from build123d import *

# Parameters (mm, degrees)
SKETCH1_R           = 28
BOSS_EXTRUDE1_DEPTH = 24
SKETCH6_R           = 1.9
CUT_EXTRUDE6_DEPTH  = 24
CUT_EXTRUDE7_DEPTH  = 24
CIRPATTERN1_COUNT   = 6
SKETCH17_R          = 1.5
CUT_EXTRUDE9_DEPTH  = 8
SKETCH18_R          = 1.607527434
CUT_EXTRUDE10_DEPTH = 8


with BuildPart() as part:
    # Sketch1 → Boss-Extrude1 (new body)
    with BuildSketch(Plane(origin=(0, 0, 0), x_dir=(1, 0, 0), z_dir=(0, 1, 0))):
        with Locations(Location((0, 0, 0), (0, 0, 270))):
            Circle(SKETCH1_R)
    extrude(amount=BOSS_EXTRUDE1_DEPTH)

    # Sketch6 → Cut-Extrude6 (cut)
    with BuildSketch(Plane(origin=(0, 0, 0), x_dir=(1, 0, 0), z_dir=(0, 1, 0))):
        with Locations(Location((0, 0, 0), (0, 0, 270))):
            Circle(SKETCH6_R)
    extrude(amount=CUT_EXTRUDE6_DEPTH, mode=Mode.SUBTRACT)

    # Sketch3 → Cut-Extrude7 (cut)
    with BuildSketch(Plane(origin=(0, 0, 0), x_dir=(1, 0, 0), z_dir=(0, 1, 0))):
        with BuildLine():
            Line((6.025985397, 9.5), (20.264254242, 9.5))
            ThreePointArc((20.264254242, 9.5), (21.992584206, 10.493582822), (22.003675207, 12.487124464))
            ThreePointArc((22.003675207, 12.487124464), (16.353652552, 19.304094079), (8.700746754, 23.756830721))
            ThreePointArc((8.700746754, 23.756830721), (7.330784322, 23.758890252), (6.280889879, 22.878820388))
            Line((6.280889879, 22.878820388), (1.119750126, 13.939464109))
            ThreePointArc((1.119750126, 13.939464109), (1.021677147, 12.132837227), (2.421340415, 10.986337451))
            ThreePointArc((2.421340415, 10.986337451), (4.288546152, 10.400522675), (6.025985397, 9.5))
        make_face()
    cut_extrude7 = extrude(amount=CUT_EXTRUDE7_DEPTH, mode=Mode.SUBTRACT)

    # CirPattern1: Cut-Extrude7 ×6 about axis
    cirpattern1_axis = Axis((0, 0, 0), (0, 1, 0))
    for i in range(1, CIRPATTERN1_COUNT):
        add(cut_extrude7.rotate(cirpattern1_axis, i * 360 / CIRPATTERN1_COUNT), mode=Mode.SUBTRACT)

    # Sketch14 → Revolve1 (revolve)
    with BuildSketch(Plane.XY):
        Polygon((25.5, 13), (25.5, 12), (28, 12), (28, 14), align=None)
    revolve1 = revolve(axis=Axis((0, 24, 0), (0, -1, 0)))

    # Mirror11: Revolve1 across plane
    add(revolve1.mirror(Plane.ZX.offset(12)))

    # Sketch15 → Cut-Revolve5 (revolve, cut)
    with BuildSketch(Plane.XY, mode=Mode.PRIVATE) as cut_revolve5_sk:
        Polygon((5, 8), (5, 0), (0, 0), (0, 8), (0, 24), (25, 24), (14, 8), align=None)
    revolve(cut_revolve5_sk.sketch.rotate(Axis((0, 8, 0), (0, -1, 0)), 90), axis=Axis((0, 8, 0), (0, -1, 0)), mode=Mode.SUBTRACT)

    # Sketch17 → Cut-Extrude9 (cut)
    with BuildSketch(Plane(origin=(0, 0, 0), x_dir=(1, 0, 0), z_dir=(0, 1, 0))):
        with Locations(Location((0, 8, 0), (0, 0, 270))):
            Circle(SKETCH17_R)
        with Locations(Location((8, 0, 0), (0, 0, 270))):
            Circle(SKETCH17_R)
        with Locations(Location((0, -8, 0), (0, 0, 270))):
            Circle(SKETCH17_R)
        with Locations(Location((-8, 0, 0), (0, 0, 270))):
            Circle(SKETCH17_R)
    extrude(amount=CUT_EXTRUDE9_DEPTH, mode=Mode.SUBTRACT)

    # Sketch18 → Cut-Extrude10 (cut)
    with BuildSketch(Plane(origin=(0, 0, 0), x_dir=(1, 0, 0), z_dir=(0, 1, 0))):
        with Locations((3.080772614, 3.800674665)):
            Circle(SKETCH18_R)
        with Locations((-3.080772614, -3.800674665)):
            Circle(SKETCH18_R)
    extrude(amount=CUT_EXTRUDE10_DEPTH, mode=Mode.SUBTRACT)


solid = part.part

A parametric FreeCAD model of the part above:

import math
import FreeCAD as App
import Part
import Sketcher

V = App.Vector
Q = App.Units.Quantity


def add_polygon(sketch, points):
    """Adds a closed chain of lines whose ends are joined by coincident constraints."""
    first, n = sketch.GeometryCount, len(points)
    for a, b in zip(points, points[1:] + points[:1]):
        sketch.addGeometry(Part.LineSegment(App.Vector(*a, 0), App.Vector(*b, 0)), False)
    for i in range(n):
        sketch.addConstraint(Sketcher.Constraint("Coincident", first + i, 2, first + (i + 1) % n, 1))

doc = App.newDocument("Part")
body = doc.addObject("PartDesign::Body", "Body")

sketch1 = body.newObject("Sketcher::SketchObject", "Sketch")
sketch1.AttachmentSupport = (doc.getObject("XZ_Plane"), [""])
sketch1.MapMode = "FlatFace"
sketch1.addGeometry(Part.Circle(V(0, 0, 0), V(0, 0, 1), 28), False)
sketch1.addConstraint([
    Sketcher.Constraint("Coincident", 0, 3, -1, 1),
    Sketcher.Constraint("Diameter", 0, 56.0),
])
pad1 = body.newObject("PartDesign::Pad", "Pad")
pad1.Profile = sketch1
pad1.Length = 24
pad1.Reversed = True

sketch2 = body.newObject("Sketcher::SketchObject", "Sketch001")
sketch2.AttachmentSupport = (doc.getObject("XZ_Plane"), [""])
sketch2.MapMode = "FlatFace"
sketch2.addGeometry(Part.Circle(V(0, 0, 0), V(0, 0, 1), 1.9), False)
sketch2.addConstraint([
    Sketcher.Constraint("Coincident", 0, 3, -1, 1),
    Sketcher.Constraint("Diameter", 0, 3.8),
])
pocket1 = body.newObject("PartDesign::Pocket", "Pocket")
pocket1.Profile = sketch2
pocket1.Length = 24

sketch3 = body.newObject("Sketcher::SketchObject", "Sketch002")
sketch3.AttachmentSupport = (doc.getObject("XZ_Plane"), [""])
sketch3.MapMode = "FlatFace"
sketch3.addGeometry([
    Part.LineSegment(V(6, -9.5, 0), V(20.3, -9.5, 0)),
    Part.ArcOfCircle(Part.Circle(V(20.3, -11.5, 0), V(0, 0, 1), 2), math.radians(-30), math.radians(90)),
    Part.ArcOfCircle(Part.Circle(V(0, 0, 0), V(0, 0, 1), 25.3), math.radians(-70), math.radians(-30)),
    Part.ArcOfCircle(Part.Circle(V(8, -21.9, 0), V(0, 0, 1), 2), math.radians(-150), math.radians(-70)),
    Part.LineSegment(V(6.3, -22.9, 0), V(1.1, -13.9, 0)),
    Part.ArcOfCircle(Part.Circle(V(2.9, -12.9, 0), V(0, 0, 1), 2), math.radians(102), math.radians(210)),
    Part.ArcOfCircle(Part.Circle(V(0, 0, 0), V(0, 0, 1), 11.2), math.radians(-77.57), math.radians(-57.61)),
], False)
sketch3.addConstraint([
    Sketcher.Constraint("Tangent", 0, 2, 1, 2),
    Sketcher.Constraint("Tangent", 1, 1, 2, 2),
    Sketcher.Constraint("Tangent", 2, 1, 3, 2),
    Sketcher.Constraint("Tangent", 3, 1, 4, 1),
    Sketcher.Constraint("Tangent", 4, 2, 5, 2),
    Sketcher.Constraint("Tangent", 5, 1, 6, 1),
    Sketcher.Constraint("Coincident", 6, 2, 0, 1),
    Sketcher.Constraint("Horizontal", 0),
    Sketcher.Constraint("Coincident", 2, 3, -1, 1),
    Sketcher.Constraint("Coincident", 6, 3, -1, 1),
    Sketcher.Constraint("Equal", 1, 3),
    Sketcher.Constraint("Equal", 3, 5),
    Sketcher.Constraint("Radius", 1, 2.0),
    Sketcher.Constraint("Radius", 2, 25.3),
    Sketcher.Constraint("Angle", 4, Q("120 deg")),
    Sketcher.Constraint("Radius", 6, 11.25),
    Sketcher.Constraint("DistanceY", 1, 3, -1, 1, 11.5),
    Sketcher.Constraint("DistanceX", -1, 1, 5, 3, 2.851801),
])
pocket2 = body.newObject("PartDesign::Pocket", "Pocket001")
pocket2.Profile = sketch3
pocket2.Length = 24
doc.recompute()

polarpattern = body.newObject("PartDesign::PolarPattern", "PolarPattern")
polarpattern.Originals = [pocket2]
polarpattern.Axis = (doc.getObject("Y_Axis"), [""])
polarpattern.Angle = 360
polarpattern.Occurrences = 6
body.Tip = polarpattern

sketch4 = body.newObject("Sketcher::SketchObject", "Sketch003")
sketch4.AttachmentSupport = (doc.getObject("XY_Plane"), [""])
sketch4.MapMode = "FlatFace"
add_polygon(sketch4, [(25.5, 13), (25.5, 12), (28, 12), (28, 14)])
sketch4.addConstraint([
    Sketcher.Constraint("Vertical", 0),
    Sketcher.Constraint("Horizontal", 1),
    Sketcher.Constraint("Vertical", 2),
    Sketcher.Constraint("DistanceY", 0, 2, 0, 1, 1.0),
    Sketcher.Constraint("DistanceY", 2, 1, 2, 2, 2.0),
    Sketcher.Constraint("DistanceX", 1, 1, 1, 2, 2.5),
    Sketcher.Constraint("DistanceY", -1, 1, 0, 2, 12.0),
    Sketcher.Constraint("DistanceX", -1, 1, 1, 2, 28.0),
])
revolution = body.newObject("PartDesign::Revolution", "Revolution")
revolution.Profile = sketch4
revolution.ReferenceAxis = (sketch4, ["V_Axis"])
revolution.Angle = 360
doc.recompute()

datumplane = body.newObject("PartDesign::Plane", "DatumPlane")
datumplane.AttachmentSupport = (doc.getObject("XZ_Plane"), [""])
datumplane.MapMode = "FlatFace"
datumplane.AttachmentOffset = App.Placement(V(0, 0, -12), App.Rotation())
mirrored = body.newObject("PartDesign::Mirrored", "Mirrored")
mirrored.Originals = [revolution]
mirrored.MirrorPlane = (datumplane, [""])
body.Tip = mirrored

sketch5 = body.newObject("Sketcher::SketchObject", "Sketch004")
sketch5.AttachmentSupport = (doc.getObject("XY_Plane"), [""])
sketch5.MapMode = "FlatFace"
add_polygon(sketch5, [(5, 0), (5, 8), (14, 8), (25, 24), (0, 24), (0, 0)])
sketch5.addConstraint([
    Sketcher.Constraint("Vertical", 0),
    Sketcher.Constraint("Horizontal", 1),
    Sketcher.Constraint("Horizontal", 3),
    Sketcher.Constraint("Vertical", 4),
    Sketcher.Constraint("Horizontal", 5),
    Sketcher.Constraint("Coincident", 4, 2, -1, 1),
    Sketcher.Constraint("DistanceX", 1, 1, 1, 2, 9.0),
    Sketcher.Constraint("DistanceX", 3, 2, 3, 1, 25.0),
    Sketcher.Constraint("DistanceX", 5, 1, 5, 2, 5.0),
    Sketcher.Constraint("DistanceY", 0, 1, 0, 2, 8.0),
    Sketcher.Constraint("DistanceY", 4, 2, 4, 1, 24.0),
])
groove = body.newObject("PartDesign::Groove", "Groove")
groove.Profile = sketch5
groove.ReferenceAxis = (sketch5, ["V_Axis"])
groove.Angle = 360

sketch6 = body.newObject("Sketcher::SketchObject", "Sketch005")
sketch6.AttachmentSupport = (doc.getObject("XZ_Plane"), [""])
sketch6.MapMode = "FlatFace"
sketch6.addGeometry([
    Part.Circle(V(0, -8, 0), V(0, 0, 1), 1.5),
    Part.Circle(V(8, 0, 0), V(0, 0, 1), 1.5),
    Part.Circle(V(0, 8, 0), V(0, 0, 1), 1.5),
    Part.Circle(V(-8, 0, 0), V(0, 0, 1), 1.5),
], False)
sketch6.addConstraint([
    Sketcher.Constraint("Equal", 0, 1),
    Sketcher.Constraint("Equal", 1, 2),
    Sketcher.Constraint("Equal", 2, 3),
    Sketcher.Constraint("Symmetric", 0, 3, 2, 3, -1, 1),
    Sketcher.Constraint("Symmetric", 1, 3, 3, 3, -1, 1),
    Sketcher.Constraint("PointOnObject", 0, 3, -2),
    Sketcher.Constraint("PointOnObject", 1, 3, -1),
    Sketcher.Constraint("Diameter", 0, 3.0),
    Sketcher.Constraint("DistanceY", 0, 3, -1, 1, 8.0),
    Sketcher.Constraint("DistanceX", -1, 1, 1, 3, 8.0),
])
pocket3 = body.newObject("PartDesign::Pocket", "Pocket002")
pocket3.Profile = sketch6
pocket3.Length = 8

sketch7 = body.newObject("Sketcher::SketchObject", "Sketch006")
sketch7.AttachmentSupport = (doc.getObject("XZ_Plane"), [""])
sketch7.MapMode = "FlatFace"
sketch7.addGeometry([
    Part.Circle(V(3.1, -3.8, 0), V(0, 0, 1), 1.6),
    Part.Circle(V(-3.1, 3.8, 0), V(0, 0, 1), 1.6),
], False)
sketch7.addConstraint([
    Sketcher.Constraint("Equal", 0, 1),
    Sketcher.Constraint("Symmetric", 0, 3, 1, 3, -1, 1),
    Sketcher.Constraint("Diameter", 0, 3.215055),
    Sketcher.Constraint("DistanceY", 0, 3, 1, 3, 7.601349),
    Sketcher.Constraint("DistanceX", -1, 1, 0, 3, 3.080773),
])
pocket4 = body.newObject("PartDesign::Pocket", "Pocket003")
pocket4.Profile = sketch7
pocket4.Length = 8

doc.recompute()
